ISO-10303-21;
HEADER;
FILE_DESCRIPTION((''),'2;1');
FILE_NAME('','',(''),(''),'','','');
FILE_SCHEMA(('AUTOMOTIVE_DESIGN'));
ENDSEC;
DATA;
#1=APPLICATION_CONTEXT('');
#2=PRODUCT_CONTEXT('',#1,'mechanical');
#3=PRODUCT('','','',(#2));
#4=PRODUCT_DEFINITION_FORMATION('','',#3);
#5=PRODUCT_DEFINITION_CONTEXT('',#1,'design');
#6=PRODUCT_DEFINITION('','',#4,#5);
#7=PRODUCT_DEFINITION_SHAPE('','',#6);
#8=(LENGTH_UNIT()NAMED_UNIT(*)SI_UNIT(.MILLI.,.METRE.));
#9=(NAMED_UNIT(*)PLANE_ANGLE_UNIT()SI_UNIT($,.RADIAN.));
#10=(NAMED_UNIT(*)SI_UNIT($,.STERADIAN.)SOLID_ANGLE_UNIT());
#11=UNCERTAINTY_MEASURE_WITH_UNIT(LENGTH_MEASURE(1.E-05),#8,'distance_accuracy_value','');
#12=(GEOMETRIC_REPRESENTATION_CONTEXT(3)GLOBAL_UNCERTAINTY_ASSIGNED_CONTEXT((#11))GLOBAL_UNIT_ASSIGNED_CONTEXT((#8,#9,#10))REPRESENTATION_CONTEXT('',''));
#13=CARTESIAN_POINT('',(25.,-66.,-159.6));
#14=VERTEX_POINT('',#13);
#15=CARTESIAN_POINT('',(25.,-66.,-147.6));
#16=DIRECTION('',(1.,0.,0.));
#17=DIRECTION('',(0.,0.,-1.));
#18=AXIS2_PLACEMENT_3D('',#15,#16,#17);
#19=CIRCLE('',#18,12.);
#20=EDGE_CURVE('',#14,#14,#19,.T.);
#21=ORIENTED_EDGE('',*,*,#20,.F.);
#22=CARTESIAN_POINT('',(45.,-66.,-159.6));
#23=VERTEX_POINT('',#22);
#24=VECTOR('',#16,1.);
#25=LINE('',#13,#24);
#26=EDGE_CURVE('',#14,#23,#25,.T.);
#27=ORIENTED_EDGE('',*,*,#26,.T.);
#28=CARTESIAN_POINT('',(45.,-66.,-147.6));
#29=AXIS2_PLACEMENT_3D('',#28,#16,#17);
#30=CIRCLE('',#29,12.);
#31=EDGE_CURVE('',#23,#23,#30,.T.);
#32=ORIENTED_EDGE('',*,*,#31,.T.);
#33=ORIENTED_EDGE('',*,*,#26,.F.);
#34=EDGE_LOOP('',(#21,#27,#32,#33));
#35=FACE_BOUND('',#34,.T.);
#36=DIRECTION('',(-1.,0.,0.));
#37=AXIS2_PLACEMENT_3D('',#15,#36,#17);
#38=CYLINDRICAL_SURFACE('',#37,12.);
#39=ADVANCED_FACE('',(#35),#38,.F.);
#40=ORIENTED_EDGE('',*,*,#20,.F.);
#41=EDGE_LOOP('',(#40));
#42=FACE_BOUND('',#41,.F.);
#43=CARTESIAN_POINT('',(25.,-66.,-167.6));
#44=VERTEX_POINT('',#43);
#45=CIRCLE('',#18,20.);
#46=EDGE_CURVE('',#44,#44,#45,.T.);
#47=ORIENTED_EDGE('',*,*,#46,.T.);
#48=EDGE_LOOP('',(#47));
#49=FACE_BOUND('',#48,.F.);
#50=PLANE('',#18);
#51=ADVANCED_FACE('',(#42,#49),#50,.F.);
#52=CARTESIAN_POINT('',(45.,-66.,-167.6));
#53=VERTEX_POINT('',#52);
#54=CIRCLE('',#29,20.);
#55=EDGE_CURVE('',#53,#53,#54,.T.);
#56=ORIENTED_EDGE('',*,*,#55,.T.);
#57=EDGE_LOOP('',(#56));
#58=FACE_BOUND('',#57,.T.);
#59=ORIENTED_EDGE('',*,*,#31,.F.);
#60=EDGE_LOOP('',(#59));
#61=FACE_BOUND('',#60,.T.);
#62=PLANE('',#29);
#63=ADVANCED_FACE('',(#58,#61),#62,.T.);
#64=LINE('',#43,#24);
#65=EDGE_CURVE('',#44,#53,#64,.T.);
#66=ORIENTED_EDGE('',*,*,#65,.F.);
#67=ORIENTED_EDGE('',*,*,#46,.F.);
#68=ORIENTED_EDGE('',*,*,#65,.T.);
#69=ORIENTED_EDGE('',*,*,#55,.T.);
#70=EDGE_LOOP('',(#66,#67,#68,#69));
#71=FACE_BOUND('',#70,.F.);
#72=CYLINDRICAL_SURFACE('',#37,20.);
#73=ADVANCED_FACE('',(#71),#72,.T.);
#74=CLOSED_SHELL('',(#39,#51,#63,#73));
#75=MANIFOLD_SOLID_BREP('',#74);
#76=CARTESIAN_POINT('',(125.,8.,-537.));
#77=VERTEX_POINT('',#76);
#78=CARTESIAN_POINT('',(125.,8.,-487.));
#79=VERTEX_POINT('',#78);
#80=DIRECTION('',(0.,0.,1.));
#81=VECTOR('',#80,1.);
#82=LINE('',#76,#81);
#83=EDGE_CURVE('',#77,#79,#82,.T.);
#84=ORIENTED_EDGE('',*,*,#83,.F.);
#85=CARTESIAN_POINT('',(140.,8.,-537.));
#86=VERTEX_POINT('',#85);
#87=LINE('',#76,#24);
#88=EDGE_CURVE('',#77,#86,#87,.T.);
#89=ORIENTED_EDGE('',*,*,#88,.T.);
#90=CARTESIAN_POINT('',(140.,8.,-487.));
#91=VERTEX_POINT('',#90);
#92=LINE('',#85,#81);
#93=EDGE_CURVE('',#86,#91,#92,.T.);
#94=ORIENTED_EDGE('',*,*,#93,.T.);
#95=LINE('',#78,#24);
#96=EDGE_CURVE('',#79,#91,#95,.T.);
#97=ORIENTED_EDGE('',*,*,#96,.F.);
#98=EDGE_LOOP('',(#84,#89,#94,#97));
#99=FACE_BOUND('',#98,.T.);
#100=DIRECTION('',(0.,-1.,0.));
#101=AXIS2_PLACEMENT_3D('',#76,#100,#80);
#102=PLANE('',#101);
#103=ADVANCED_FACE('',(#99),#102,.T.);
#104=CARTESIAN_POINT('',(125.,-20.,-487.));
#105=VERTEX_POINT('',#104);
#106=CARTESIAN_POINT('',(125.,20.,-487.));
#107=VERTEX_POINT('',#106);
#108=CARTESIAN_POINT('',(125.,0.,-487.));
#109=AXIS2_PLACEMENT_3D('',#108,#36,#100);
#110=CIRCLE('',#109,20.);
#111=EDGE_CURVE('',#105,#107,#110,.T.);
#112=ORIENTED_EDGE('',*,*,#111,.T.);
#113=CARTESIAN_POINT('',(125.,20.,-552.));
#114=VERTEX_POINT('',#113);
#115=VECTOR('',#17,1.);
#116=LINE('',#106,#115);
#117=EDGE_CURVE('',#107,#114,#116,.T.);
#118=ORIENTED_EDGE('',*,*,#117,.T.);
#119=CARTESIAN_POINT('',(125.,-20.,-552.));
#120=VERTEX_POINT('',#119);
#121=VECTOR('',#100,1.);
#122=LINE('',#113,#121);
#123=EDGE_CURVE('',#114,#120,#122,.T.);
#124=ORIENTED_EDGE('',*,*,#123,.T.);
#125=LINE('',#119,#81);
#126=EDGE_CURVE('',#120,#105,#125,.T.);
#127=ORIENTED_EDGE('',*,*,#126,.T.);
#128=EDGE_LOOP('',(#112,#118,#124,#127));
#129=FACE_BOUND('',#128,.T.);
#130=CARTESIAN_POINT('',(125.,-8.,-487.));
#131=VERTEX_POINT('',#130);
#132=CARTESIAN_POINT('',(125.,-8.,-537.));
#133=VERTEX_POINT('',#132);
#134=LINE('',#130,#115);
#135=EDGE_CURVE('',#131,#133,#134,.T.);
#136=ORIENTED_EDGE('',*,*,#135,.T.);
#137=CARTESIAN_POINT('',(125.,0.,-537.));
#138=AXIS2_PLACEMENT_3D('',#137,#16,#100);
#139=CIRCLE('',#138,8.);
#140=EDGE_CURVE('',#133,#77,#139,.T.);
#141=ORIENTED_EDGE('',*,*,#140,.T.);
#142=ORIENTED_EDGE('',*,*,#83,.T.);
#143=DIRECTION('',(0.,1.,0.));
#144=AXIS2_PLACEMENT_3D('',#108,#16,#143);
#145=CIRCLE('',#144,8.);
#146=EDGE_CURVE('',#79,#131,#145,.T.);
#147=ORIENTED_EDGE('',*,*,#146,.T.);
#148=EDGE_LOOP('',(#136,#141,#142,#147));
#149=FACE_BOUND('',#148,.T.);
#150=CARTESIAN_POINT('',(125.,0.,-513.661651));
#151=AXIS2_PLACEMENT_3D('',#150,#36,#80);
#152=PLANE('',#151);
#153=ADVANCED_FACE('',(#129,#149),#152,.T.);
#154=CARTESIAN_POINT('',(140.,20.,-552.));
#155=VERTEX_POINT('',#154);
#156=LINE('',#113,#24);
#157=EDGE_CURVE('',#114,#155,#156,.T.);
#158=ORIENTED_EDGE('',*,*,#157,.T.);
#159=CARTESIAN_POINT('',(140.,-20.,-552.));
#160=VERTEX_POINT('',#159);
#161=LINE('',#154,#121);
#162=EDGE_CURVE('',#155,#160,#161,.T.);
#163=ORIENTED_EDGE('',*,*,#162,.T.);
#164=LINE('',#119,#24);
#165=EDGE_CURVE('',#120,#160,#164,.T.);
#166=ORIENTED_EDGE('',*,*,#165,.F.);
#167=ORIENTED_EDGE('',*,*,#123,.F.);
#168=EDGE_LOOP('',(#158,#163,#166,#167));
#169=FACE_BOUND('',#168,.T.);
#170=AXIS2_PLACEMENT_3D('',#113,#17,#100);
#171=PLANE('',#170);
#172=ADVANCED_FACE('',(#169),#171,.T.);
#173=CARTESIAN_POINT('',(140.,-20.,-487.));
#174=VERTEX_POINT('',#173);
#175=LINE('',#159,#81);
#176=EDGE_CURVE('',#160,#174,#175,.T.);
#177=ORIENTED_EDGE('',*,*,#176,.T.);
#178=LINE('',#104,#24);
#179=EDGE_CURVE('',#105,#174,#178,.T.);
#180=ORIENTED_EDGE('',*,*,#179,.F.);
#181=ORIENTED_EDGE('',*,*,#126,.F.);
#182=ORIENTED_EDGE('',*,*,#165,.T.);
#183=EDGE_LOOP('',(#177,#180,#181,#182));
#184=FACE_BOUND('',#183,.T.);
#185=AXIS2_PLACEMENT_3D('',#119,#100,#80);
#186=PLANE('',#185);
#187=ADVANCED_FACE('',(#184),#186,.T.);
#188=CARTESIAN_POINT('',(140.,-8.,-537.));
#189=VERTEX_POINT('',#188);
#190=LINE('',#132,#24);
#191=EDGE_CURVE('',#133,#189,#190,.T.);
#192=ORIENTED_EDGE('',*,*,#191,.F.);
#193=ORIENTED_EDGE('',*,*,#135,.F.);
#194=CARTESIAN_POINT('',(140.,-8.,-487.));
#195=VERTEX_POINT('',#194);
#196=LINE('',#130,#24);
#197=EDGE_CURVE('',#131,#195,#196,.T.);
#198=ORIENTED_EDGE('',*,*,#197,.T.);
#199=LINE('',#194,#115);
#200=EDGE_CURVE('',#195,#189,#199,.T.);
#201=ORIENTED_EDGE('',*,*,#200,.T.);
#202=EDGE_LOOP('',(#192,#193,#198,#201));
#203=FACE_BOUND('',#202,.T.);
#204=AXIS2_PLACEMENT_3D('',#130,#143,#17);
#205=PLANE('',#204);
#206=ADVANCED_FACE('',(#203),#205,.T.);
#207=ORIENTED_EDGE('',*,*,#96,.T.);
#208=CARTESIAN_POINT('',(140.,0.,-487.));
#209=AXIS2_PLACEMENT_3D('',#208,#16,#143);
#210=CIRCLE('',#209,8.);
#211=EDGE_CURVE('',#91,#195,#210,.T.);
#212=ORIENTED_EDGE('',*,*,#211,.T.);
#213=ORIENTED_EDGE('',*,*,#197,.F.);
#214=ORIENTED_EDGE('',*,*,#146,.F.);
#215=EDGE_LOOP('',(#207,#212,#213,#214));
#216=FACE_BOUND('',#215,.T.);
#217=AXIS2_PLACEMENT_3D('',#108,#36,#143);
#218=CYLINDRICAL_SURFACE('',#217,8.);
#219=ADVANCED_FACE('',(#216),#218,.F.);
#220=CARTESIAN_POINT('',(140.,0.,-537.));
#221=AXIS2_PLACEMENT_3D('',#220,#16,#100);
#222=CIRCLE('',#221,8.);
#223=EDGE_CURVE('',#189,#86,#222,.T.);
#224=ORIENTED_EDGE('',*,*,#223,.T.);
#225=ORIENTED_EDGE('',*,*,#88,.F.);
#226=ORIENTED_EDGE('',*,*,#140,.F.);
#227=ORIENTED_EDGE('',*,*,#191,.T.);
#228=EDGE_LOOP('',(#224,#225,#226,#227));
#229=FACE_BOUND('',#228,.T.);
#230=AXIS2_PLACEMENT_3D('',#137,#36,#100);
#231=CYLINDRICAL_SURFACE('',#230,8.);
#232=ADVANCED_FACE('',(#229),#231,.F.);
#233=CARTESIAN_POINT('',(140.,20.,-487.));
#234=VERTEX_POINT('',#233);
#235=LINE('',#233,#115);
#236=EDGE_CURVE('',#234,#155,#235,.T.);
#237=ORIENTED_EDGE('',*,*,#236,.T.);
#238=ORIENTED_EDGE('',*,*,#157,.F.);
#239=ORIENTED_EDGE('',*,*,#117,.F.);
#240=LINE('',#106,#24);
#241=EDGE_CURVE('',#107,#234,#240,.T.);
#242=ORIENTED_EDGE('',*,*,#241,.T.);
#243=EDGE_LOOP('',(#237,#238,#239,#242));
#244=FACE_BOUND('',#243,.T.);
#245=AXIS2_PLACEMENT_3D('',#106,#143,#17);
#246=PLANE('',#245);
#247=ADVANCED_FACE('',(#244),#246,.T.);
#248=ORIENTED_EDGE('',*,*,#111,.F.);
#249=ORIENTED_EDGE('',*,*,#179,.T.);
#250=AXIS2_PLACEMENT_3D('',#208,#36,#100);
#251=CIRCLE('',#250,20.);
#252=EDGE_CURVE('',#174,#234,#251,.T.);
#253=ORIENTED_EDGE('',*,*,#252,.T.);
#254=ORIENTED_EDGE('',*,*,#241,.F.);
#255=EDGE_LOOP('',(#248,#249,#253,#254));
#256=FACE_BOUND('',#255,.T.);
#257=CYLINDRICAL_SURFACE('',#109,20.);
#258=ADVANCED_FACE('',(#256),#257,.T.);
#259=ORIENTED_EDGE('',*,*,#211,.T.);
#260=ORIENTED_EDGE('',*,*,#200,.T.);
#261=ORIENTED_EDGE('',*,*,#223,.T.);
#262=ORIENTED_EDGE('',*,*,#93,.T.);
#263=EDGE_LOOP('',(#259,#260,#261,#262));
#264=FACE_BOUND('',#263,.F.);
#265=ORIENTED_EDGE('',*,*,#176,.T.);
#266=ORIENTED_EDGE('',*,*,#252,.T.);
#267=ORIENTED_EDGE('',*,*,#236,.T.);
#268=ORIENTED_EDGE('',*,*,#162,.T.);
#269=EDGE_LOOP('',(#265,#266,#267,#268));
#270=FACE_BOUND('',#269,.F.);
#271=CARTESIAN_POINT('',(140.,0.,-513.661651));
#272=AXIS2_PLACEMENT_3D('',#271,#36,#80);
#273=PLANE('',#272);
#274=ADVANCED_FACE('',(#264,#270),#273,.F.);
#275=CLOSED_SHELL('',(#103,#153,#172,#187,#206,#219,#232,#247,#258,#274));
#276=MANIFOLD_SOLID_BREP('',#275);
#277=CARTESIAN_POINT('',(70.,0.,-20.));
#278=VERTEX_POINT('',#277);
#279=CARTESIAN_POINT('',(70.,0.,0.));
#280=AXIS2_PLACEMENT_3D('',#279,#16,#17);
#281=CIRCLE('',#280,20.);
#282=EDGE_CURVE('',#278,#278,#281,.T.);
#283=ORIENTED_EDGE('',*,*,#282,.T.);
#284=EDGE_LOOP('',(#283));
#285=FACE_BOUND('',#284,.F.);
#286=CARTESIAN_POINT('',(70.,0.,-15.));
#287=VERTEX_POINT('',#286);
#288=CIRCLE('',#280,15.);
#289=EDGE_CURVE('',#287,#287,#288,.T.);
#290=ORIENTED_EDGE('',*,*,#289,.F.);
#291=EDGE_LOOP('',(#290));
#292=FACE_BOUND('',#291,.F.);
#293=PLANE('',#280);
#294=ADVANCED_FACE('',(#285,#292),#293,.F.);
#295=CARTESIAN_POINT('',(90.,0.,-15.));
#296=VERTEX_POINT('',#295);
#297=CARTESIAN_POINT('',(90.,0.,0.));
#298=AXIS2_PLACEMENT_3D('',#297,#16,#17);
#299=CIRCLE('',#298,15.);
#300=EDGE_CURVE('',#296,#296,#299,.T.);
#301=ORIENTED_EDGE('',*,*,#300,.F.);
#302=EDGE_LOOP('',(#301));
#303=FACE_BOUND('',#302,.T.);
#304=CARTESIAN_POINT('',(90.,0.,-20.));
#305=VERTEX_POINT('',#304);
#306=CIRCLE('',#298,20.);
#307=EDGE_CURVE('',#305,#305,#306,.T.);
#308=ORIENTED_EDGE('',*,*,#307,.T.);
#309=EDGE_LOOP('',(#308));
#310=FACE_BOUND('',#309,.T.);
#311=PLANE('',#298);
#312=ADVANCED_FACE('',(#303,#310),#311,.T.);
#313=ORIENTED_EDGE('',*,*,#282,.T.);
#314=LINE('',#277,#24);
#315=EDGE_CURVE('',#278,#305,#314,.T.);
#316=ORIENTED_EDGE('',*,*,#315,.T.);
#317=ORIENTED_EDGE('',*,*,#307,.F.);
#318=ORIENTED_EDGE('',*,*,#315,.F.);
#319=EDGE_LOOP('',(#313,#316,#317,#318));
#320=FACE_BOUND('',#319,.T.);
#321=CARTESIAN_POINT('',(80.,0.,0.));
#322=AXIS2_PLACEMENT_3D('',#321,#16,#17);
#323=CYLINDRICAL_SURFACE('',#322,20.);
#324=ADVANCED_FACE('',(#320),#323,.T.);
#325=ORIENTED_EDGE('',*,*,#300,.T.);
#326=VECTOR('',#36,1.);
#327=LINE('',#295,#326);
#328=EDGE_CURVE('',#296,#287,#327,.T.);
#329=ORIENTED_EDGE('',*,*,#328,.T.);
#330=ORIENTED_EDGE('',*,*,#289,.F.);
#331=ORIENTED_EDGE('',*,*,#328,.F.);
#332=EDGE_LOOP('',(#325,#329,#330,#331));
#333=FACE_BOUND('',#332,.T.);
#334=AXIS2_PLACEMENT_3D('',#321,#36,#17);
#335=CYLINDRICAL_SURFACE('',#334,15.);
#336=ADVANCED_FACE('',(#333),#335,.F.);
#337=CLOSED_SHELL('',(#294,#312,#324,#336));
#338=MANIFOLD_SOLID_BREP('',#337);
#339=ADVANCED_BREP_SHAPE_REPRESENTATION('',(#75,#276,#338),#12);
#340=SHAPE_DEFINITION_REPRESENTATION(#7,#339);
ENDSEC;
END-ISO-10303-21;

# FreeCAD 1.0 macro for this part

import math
import FreeCAD as App
import Part
import Sketcher
Q = App.Units.Quantity

doc = App.newDocument("Part")
body = doc.addObject("PartDesign::Body", "Body")

# Sketch on YZ plane
sketch1 = doc.addObject("Sketcher::SketchObject", "Sketch")
body.addObject(sketch1)
sketch1.AttachmentSupport = (doc.YZ_Plane, [""])
sketch1.MapMode = "FlatFace"
sketch1.AttachmentOffset = App.Placement(App.Vector(0, 0, 80), App.Rotation())
sketch1.addGeometry([
    Part.Circle(App.Vector(0, 0, 0), App.Vector(0, 0, 1), 20),
    Part.Circle(App.Vector(0, 0, 0), App.Vector(0, 0, 1), 15),
], False)
sketch1.addConstraint([
    Sketcher.Constraint("Coincident", 0, 3, -1, 1),
    Sketcher.Constraint("Coincident", 1, 3, -1, 1),
    Sketcher.Constraint("Diameter", 0, Q("40 mm")),
    Sketcher.Constraint("Diameter", 1, Q("30 mm")),
])
pad1 = doc.addObject("PartDesign::Pad", "Pad")
body.addObject(pad1)
pad1.Profile = sketch1
pad1.Length = 20
pad1.Midplane = True
body2 = doc.addObject("PartDesign::Body", "Body001")

# Sketch on YZ plane
sketch2 = doc.addObject("Sketcher::SketchObject", "Sketch001")
body2.addObject(sketch2)
sketch2.AttachmentSupport = (doc.getObject("YZ_Plane001"), [""])
sketch2.MapMode = "FlatFace"
sketch2.AttachmentOffset = App.Placement(App.Vector(0, 0, 25), App.Rotation())
sketch2.addGeometry([
    Part.Circle(App.Vector(-66, -147.6, 0), App.Vector(0, 0, 1), 20),
    Part.Circle(App.Vector(-66, -147.6, 0), App.Vector(0, 0, 1), 12),
], False)
sketch2.addConstraint([
    Sketcher.Constraint("Coincident", 1, 3, 0, 3),
    Sketcher.Constraint("Diameter", 0, Q("40 mm")),
    Sketcher.Constraint("Diameter", 1, Q("24 mm")),
    Sketcher.Constraint("DistanceX", 0, 3, -1, 1, Q("66 mm")),
    Sketcher.Constraint("DistanceY", 0, 3, -1, 1, Q("147.6 mm")),
])
pad2 = doc.addObject("PartDesign::Pad", "Pad001")
body2.addObject(pad2)
pad2.Profile = sketch2
pad2.Length = 20
body3 = doc.addObject("PartDesign::Body", "Body002")

# Sketch on YZ plane
sketch3 = doc.addObject("Sketcher::SketchObject", "Sketch002")
body3.addObject(sketch3)
sketch3.AttachmentSupport = (doc.getObject("YZ_Plane002"), [""])
sketch3.MapMode = "FlatFace"
sketch3.AttachmentOffset = App.Placement(App.Vector(0, 0, 125), App.Rotation())
sketch3.addGeometry([
    Part.LineSegment(App.Vector(20, -552, 0), App.Vector(20, -487, 0)),  # 0
    Part.ArcOfCircle(Part.Circle(App.Vector(0, -487, 0), App.Vector(0, 0, 1), 20), math.radians(0), math.radians(180)),  # 1
    Part.LineSegment(App.Vector(-20, -487, 0), App.Vector(-20, -552, 0)),  # 2
    Part.LineSegment(App.Vector(-20, -552, 0), App.Vector(20, -552, 0)),  # 3
    Part.ArcOfCircle(Part.Circle(App.Vector(0, -537, 0), App.Vector(0, 0, 1), 8), math.radians(180), math.radians(360)),  # 4
    Part.LineSegment(App.Vector(-8, -537, 0), App.Vector(-8, -487, 0)),  # 5
    Part.ArcOfCircle(Part.Circle(App.Vector(0, -487, 0), App.Vector(0, 0, 1), 8), math.radians(0), math.radians(180)),  # 6
    Part.LineSegment(App.Vector(8, -487, 0), App.Vector(8, -537, 0)),  # 7
], False)
sketch3.addConstraint([
    Sketcher.Constraint("Tangent", 0, 2, 1, 1),
    Sketcher.Constraint("Tangent", 1, 2, 2, 1),
    Sketcher.Constraint("Coincident", 2, 2, 3, 1),
    Sketcher.Constraint("Coincident", 3, 2, 0, 1),
    Sketcher.Constraint("Tangent", 4, 1, 5, 1),
    Sketcher.Constraint("Tangent", 5, 2, 6, 2),
    Sketcher.Constraint("Tangent", 6, 1, 7, 1),
    Sketcher.Constraint("Tangent", 7, 2, 4, 2),
    Sketcher.Constraint("Vertical", 0),
    Sketcher.Constraint("Vertical", 2),
    Sketcher.Constraint("Horizontal", 3),
    Sketcher.Constraint("Vertical", 5),
    Sketcher.Constraint("Vertical", 7),
    Sketcher.Constraint("Coincident", 6, 3, 1, 3),
    Sketcher.Constraint("PointOnObject", 1, 3, -2),
    Sketcher.Constraint("Radius", 1, Q("20 mm")),
    Sketcher.Constraint("Radius", 4, Q("8 mm")),
    Sketcher.Constraint("DistanceY", 0, 1, 0, 2, Q("65 mm")),
    Sketcher.Constraint("DistanceY", 5, 1, 5, 2, Q("50 mm")),
    Sketcher.Constraint("DistanceY", 1, 3, -1, 1, Q("487 mm")),
])
pad3 = doc.addObject("PartDesign::Pad", "Pad002")
body3.addObject(pad3)
pad3.Profile = sketch3
pad3.Length = 15

doc.recompute()
